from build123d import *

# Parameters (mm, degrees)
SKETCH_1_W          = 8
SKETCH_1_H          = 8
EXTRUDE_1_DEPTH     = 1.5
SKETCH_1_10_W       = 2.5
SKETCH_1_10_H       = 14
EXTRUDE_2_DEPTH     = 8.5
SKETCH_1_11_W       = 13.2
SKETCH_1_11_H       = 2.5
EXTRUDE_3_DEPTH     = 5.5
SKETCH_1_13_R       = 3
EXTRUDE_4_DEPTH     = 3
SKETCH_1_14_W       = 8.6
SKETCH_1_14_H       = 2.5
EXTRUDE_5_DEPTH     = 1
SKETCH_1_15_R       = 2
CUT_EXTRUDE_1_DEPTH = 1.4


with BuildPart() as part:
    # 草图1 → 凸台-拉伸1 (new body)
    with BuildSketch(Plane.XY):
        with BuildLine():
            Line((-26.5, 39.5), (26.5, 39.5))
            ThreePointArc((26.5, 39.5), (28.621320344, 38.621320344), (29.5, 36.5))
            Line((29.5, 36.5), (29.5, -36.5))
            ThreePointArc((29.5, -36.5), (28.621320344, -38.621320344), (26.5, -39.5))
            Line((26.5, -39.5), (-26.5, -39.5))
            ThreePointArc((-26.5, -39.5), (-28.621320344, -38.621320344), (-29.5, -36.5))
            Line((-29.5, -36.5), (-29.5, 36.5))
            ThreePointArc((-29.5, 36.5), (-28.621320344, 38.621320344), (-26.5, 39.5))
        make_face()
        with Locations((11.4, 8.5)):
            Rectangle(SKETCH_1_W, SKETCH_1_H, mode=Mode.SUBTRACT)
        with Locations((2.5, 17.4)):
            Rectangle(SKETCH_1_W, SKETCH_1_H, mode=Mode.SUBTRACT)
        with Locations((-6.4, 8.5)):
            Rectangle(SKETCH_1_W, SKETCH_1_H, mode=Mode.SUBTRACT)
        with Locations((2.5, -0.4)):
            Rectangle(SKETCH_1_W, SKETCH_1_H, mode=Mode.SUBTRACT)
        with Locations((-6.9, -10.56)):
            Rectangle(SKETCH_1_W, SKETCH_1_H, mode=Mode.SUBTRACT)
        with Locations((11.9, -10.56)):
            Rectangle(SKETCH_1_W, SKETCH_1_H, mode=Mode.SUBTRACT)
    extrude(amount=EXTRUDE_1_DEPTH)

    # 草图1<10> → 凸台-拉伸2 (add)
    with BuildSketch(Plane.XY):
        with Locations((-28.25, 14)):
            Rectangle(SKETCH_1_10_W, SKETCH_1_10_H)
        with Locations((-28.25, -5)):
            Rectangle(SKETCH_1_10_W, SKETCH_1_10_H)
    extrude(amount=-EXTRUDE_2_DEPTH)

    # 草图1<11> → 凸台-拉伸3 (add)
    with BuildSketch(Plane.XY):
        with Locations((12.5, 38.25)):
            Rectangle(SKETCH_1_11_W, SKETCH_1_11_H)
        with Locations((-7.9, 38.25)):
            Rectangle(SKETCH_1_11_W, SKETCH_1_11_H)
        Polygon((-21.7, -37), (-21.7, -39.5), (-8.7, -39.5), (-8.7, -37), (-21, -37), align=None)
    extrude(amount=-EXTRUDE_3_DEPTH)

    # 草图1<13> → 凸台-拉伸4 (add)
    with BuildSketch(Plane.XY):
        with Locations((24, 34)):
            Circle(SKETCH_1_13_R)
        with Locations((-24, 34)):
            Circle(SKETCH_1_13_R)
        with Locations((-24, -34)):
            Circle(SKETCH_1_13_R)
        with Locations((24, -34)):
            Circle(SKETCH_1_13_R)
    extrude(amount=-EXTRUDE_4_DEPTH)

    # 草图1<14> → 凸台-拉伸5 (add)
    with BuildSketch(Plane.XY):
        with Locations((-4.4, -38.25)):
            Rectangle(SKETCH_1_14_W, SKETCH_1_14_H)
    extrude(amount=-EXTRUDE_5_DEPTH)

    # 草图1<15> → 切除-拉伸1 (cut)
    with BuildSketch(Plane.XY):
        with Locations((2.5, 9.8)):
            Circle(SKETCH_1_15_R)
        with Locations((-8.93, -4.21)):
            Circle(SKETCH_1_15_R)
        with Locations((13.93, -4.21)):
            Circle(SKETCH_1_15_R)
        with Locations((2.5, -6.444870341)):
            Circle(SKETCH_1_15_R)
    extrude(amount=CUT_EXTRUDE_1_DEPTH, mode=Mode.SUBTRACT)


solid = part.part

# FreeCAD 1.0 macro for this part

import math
import FreeCAD as App
import Part
import Sketcher
Q = App.Units.Quantity

doc = App.newDocument("Part")
body = doc.addObject("PartDesign::Body", "Body")

sketch1 = doc.addObject("Sketcher::SketchObject", "Sketch")
body.addObject(sketch1)
sketch1.AttachmentSupport = (doc.XY_Plane, [""])
sketch1.MapMode = "FlatFace"
sketch1.addGeometry(Part.LineSegment(App.Vector(26.5, 39.5, 0), App.Vector(-26.5, 39.5, 0)), False)
sketch1.addGeometry(Part.ArcOfCircle(Part.Circle(App.Vector(-26.5, 36.5, 0), App.Vector(0, 0, 1), 3), math.radians(90), math.radians(180)), False)
sketch1.addGeometry(Part.LineSegment(App.Vector(-29.5, 36.5, 0), App.Vector(-29.5, -36.5, 0)), False)
sketch1.addGeometry(Part.ArcOfCircle(Part.Circle(App.Vector(-26.5, -36.5, 0), App.Vector(0, 0, 1), 3), math.radians(180), math.radians(270)), False)
sketch1.addGeometry(Part.LineSegment(App.Vector(-26.5, -39.5, 0), App.Vector(26.5, -39.5, 0)), False)
sketch1.addGeometry(Part.ArcOfCircle(Part.Circle(App.Vector(26.5, -36.5, 0), App.Vector(0, 0, 1), 3), math.radians(-90), math.radians(0)), False)
sketch1.addGeometry(Part.LineSegment(App.Vector(29.5, -36.5, 0), App.Vector(29.5, 36.5, 0)), False)
sketch1.addGeometry(Part.ArcOfCircle(Part.Circle(App.Vector(26.5, 36.5, 0), App.Vector(0, 0, 1), 3), math.radians(0), math.radians(90)), False)
sketch1.addGeometry(Part.LineSegment(App.Vector(7.9, -14.6, 0), App.Vector(7.9, -6.6, 0)), False)
sketch1.addGeometry(Part.LineSegment(App.Vector(7.9, -6.6, 0), App.Vector(15.9, -6.6, 0)), False)
sketch1.addGeometry(Part.LineSegment(App.Vector(15.9, -6.6, 0), App.Vector(15.9, -14.6, 0)), False)
sketch1.addGeometry(Part.LineSegment(App.Vector(15.9, -14.6, 0), App.Vector(7.9, -14.6, 0)), False)
sketch1.addGeometry(Part.LineSegment(App.Vector(-1.5, -4.4, 0), App.Vector(-1.5, 3.6, 0)), False)
sketch1.addGeometry(Part.LineSegment(App.Vector(-1.5, 3.6, 0), App.Vector(6.5, 3.6, 0)), False)
sketch1.addGeometry(Part.LineSegment(App.Vector(6.5, 3.6, 0), App.Vector(6.5, -4.4, 0)), False)
sketch1.addGeometry(Part.LineSegment(App.Vector(6.5, -4.4, 0), App.Vector(-1.5, -4.4, 0)), False)
sketch1.addGeometry(Part.LineSegment(App.Vector(-10.9, -14.6, 0), App.Vector(-10.9, -6.6, 0)), False)
sketch1.addGeometry(Part.LineSegment(App.Vector(-10.9, -6.6, 0), App.Vector(-2.9, -6.6, 0)), False)
sketch1.addGeometry(Part.LineSegment(App.Vector(-2.9, -6.6, 0), App.Vector(-2.9, -14.6, 0)), False)
sketch1.addGeometry(Part.LineSegment(App.Vector(-2.9, -14.6, 0), App.Vector(-10.9, -14.6, 0)), False)
sketch1.addGeometry(Part.LineSegment(App.Vector(7.4, 4.5, 0), App.Vector(7.4, 12.5, 0)), False)
sketch1.addGeometry(Part.LineSegment(App.Vector(7.4, 12.5, 0), App.Vector(15.4, 12.5, 0)), False)
sketch1.addGeometry(Part.LineSegment(App.Vector(15.4, 12.5, 0), App.Vector(15.4, 4.5, 0)), False)
sketch1.addGeometry(Part.LineSegment(App.Vector(15.4, 4.5, 0), App.Vector(7.4, 4.5, 0)), False)
sketch1.addGeometry(Part.LineSegment(App.Vector(-1.5, 13.4, 0), App.Vector(-1.5, 21.4, 0)), False)
sketch1.addGeometry(Part.LineSegment(App.Vector(-1.5, 21.4, 0), App.Vector(6.5, 21.4, 0)), False)
sketch1.addGeometry(Part.LineSegment(App.Vector(6.5, 21.4, 0), App.Vector(6.5, 13.4, 0)), False)
sketch1.addGeometry(Part.LineSegment(App.Vector(6.5, 13.4, 0), App.Vector(-1.5, 13.4, 0)), False)
sketch1.addGeometry(Part.LineSegment(App.Vector(-10.4, 4.5, 0), App.Vector(-10.4, 12.5, 0)), False)
sketch1.addGeometry(Part.LineSegment(App.Vector(-10.4, 12.5, 0), App.Vector(-2.4, 12.5, 0)), False)
sketch1.addGeometry(Part.LineSegment(App.Vector(-2.4, 12.5, 0), App.Vector(-2.4, 4.5, 0)), False)
sketch1.addGeometry(Part.LineSegment(App.Vector(-2.4, 4.5, 0), App.Vector(-10.4, 4.5, 0)), False)
sketch1.addConstraint(Sketcher.Constraint("Tangent", 0, 2, 1, 1))
sketch1.addConstraint(Sketcher.Constraint("Tangent", 1, 2, 2, 1))
sketch1.addConstraint(Sketcher.Constraint("Tangent", 2, 2, 3, 1))
sketch1.addConstraint(Sketcher.Constraint("Tangent", 3, 2, 4, 1))
sketch1.addConstraint(Sketcher.Constraint("Tangent", 4, 2, 5, 1))
sketch1.addConstraint(Sketcher.Constraint("Tangent", 5, 2, 6, 1))
sketch1.addConstraint(Sketcher.Constraint("Tangent", 6, 2, 7, 1))
sketch1.addConstraint(Sketcher.Constraint("Tangent", 7, 2, 0, 1))
sketch1.addConstraint(Sketcher.Constraint("Coincident", 8, 2, 9, 1))
sketch1.addConstraint(Sketcher.Constraint("Coincident", 9, 2, 10, 1))
sketch1.addConstraint(Sketcher.Constraint("Coincident", 10, 2, 11, 1))
sketch1.addConstraint(Sketcher.Constraint("Coincident", 11, 2, 8, 1))
sketch1.addConstraint(Sketcher.Constraint("Coincident", 12, 2, 13, 1))
sketch1.addConstraint(Sketcher.Constraint("Coincident", 13, 2, 14, 1))
sketch1.addConstraint(Sketcher.Constraint("Coincident", 14, 2, 15, 1))
sketch1.addConstraint(Sketcher.Constraint("Coincident", 15, 2, 12, 1))
sketch1.addConstraint(Sketcher.Constraint("Coincident", 16, 2, 17, 1))
sketch1.addConstraint(Sketcher.Constraint("Coincident", 17, 2, 18, 1))
sketch1.addConstraint(Sketcher.Constraint("Coincident", 18, 2, 19, 1))
sketch1.addConstraint(Sketcher.Constraint("Coincident", 19, 2, 16, 1))
sketch1.addConstraint(Sketcher.Constraint("Coincident", 20, 2, 21, 1))
sketch1.addConstraint(Sketcher.Constraint("Coincident", 21, 2, 22, 1))
sketch1.addConstraint(Sketcher.Constraint("Coincident", 22, 2, 23, 1))
sketch1.addConstraint(Sketcher.Constraint("Coincident", 23, 2, 20, 1))
sketch1.addConstraint(Sketcher.Constraint("Coincident", 24, 2, 25, 1))
sketch1.addConstraint(Sketcher.Constraint("Coincident", 25, 2, 26, 1))
sketch1.addConstraint(Sketcher.Constraint("Coincident", 26, 2, 27, 1))
sketch1.addConstraint(Sketcher.Constraint("Coincident", 27, 2, 24, 1))
sketch1.addConstraint(Sketcher.Constraint("Coincident", 28, 2, 29, 1))
sketch1.addConstraint(Sketcher.Constraint("Coincident", 29, 2, 30, 1))
sketch1.addConstraint(Sketcher.Constraint("Coincident", 30, 2, 31, 1))
sketch1.addConstraint(Sketcher.Constraint("Coincident", 31, 2, 28, 1))
sketch1.addConstraint(Sketcher.Constraint("Horizontal", 0))
sketch1.addConstraint(Sketcher.Constraint("Vertical", 2))
sketch1.addConstraint(Sketcher.Constraint("Horizontal", 4))
sketch1.addConstraint(Sketcher.Constraint("Vertical", 6))
sketch1.addConstraint(Sketcher.Constraint("Vertical", 8))
sketch1.addConstraint(Sketcher.Constraint("Horizontal", 9))
sketch1.addConstraint(Sketcher.Constraint("Vertical", 10))
sketch1.addConstraint(Sketcher.Constraint("Horizontal", 11))
sketch1.addConstraint(Sketcher.Constraint("Vertical", 12))
sketch1.addConstraint(Sketcher.Constraint("Horizontal", 13))
sketch1.addConstraint(Sketcher.Constraint("Vertical", 14))
sketch1.addConstraint(Sketcher.Constraint("Horizontal", 15))
sketch1.addConstraint(Sketcher.Constraint("Vertical", 16))
sketch1.addConstraint(Sketcher.Constraint("Horizontal", 17))
sketch1.addConstraint(Sketcher.Constraint("Vertical", 18))
sketch1.addConstraint(Sketcher.Constraint("Horizontal", 19))
sketch1.addConstraint(Sketcher.Constraint("Vertical", 20))
sketch1.addConstraint(Sketcher.Constraint("Horizontal", 21))
sketch1.addConstraint(Sketcher.Constraint("Vertical", 22))
sketch1.addConstraint(Sketcher.Constraint("Horizontal", 23))
sketch1.addConstraint(Sketcher.Constraint("Vertical", 24))
sketch1.addConstraint(Sketcher.Constraint("Horizontal", 25))
sketch1.addConstraint(Sketcher.Constraint("Vertical", 26))
sketch1.addConstraint(Sketcher.Constraint("Horizontal", 27))
sketch1.addConstraint(Sketcher.Constraint("Vertical", 28))
sketch1.addConstraint(Sketcher.Constraint("Horizontal", 29))
sketch1.addConstraint(Sketcher.Constraint("Vertical", 30))
sketch1.addConstraint(Sketcher.Constraint("Horizontal", 31))
sketch1.addConstraint(Sketcher.Constraint("Equal", 1, 3))
sketch1.addConstraint(Sketcher.Constraint("Equal", 3, 5))
sketch1.addConstraint(Sketcher.Constraint("Equal", 5, 7))
sketch1.addConstraint(Sketcher.Constraint("Symmetric", 1, 3, 5, 3, -1, 1))
sketch1.addConstraint(Sketcher.Constraint("Horizontal", 9, 2, 16, 2))
sketch1.addConstraint(Sketcher.Constraint("Horizontal", 11, 2, 18, 2))
sketch1.addConstraint(Sketcher.Constraint("Horizontal", 21, 2, 28, 2))
sketch1.addConstraint(Sketcher.Constraint("Horizontal", 23, 2, 30, 2))
sketch1.addConstraint(Sketcher.Constraint("Vertical", 15, 2, 24, 2))
sketch1.addConstraint(Sketcher.Constraint("Vertical", 14, 2, 25, 2))
sketch1.addConstraint(Sketcher.Constraint("Equal", 11, 13))
sketch1.addConstraint(Sketcher.Constraint("Equal", 15, 17))
sketch1.addConstraint(Sketcher.Constraint("Equal", 19, 21))
sketch1.addConstraint(Sketcher.Constraint("Equal", 27, 29))
sketch1.addConstraint(Sketcher.Constraint("Equal", 31, 8))
sketch1.addConstraint(Sketcher.Constraint("Equal", 10, 12))
sketch1.addConstraint(Sketcher.Constraint("Equal", 18, 20))
sketch1.addConstraint(Sketcher.Constraint("Equal", 22, 24))
sketch1.addConstraint(Sketcher.Constraint("Radius", 1, Q("3 mm")))
sketch1.addConstraint(Sketcher.Constraint("DistanceX", 0, 2, 0, 1, Q("53 mm")))
sketch1.addConstraint(Sketcher.Constraint("DistanceX", 9, 1, 9, 2, Q("8 mm")))
sketch1.addConstraint(Sketcher.Constraint("DistanceY", 2, 2, 2, 1, Q("73 mm")))
sketch1.addConstraint(Sketcher.Constraint("DistanceX", 1, 3, 12, 2, Q("25 mm")))
sketch1.addConstraint(Sketcher.Constraint("DistanceX", -1, 1, 8, 2, Q("7.9 mm")))
sketch1.addConstraint(Sketcher.Constraint("DistanceY", -1, 1, 12, 2, Q("3.6 mm")))
sketch1.addConstraint(Sketcher.Constraint("DistanceX", 16, 2, -1, 1, Q("10.9 mm")))
sketch1.addConstraint(Sketcher.Constraint("DistanceX", -1, 1, 20, 2, Q("7.4 mm")))
sketch1.addConstraint(Sketcher.Constraint("DistanceY", -1, 1, 20, 2, Q("12.5 mm")))
sketch1.addConstraint(Sketcher.Constraint("DistanceY", -1, 1, 24, 2, Q("21.4 mm")))
sketch1.addConstraint(Sketcher.Constraint("DistanceX", 28, 2, -1, 1, Q("10.4 mm")))
sketch1.addConstraint(Sketcher.Constraint("DistanceY", 8, 2, -1, 1, Q("6.56 mm")))
pad1 = doc.addObject("PartDesign::Pad", "Pad")
body.addObject(pad1)
pad1.Profile = sketch1
pad1.Length = 1.5

sketch2 = doc.addObject("Sketcher::SketchObject", "Sketch001")
body.addObject(sketch2)
sketch2.AttachmentSupport = (doc.XY_Plane, [""])
sketch2.MapMode = "FlatFace"
sketch2.addGeometry(Part.LineSegment(App.Vector(-29.5, 21, 0), App.Vector(-29.5, 7, 0)), False)
sketch2.addGeometry(Part.LineSegment(App.Vector(-29.5, 7, 0), App.Vector(-27, 7, 0)), False)
sketch2.addGeometry(Part.LineSegment(App.Vector(-27, 7, 0), App.Vector(-27, 21, 0)), False)
sketch2.addGeometry(Part.LineSegment(App.Vector(-27, 21, 0), App.Vector(-29.5, 21, 0)), False)
sketch2.addGeometry(Part.LineSegment(App.Vector(-29.5, 2, 0), App.Vector(-29.5, -12, 0)), False)
sketch2.addGeometry(Part.LineSegment(App.Vector(-29.5, -12, 0), App.Vector(-27, -12, 0)), False)
sketch2.addGeometry(Part.LineSegment(App.Vector(-27, -12, 0), App.Vector(-27, 2, 0)), False)
sketch2.addGeometry(Part.LineSegment(App.Vector(-27, 2, 0), App.Vector(-29.5, 2, 0)), False)
sketch2.addConstraint(Sketcher.Constraint("Coincident", 0, 2, 1, 1))
sketch2.addConstraint(Sketcher.Constraint("Coincident", 1, 2, 2, 1))
sketch2.addConstraint(Sketcher.Constraint("Coincident", 2, 2, 3, 1))
sketch2.addConstraint(Sketcher.Constraint("Coincident", 3, 2, 0, 1))
sketch2.addConstraint(Sketcher.Constraint("Coincident", 4, 2, 5, 1))
sketch2.addConstraint(Sketcher.Constraint("Coincident", 5, 2, 6, 1))
sketch2.addConstraint(Sketcher.Constraint("Coincident", 6, 2, 7, 1))
sketch2.addConstraint(Sketcher.Constraint("Coincident", 7, 2, 4, 1))
sketch2.addConstraint(Sketcher.Constraint("Vertical", 0))
sketch2.addConstraint(Sketcher.Constraint("Horizontal", 1))
sketch2.addConstraint(Sketcher.Constraint("Vertical", 2))
sketch2.addConstraint(Sketcher.Constraint("Horizontal", 3))
sketch2.addConstraint(Sketcher.Constraint("Vertical", 4))
sketch2.addConstraint(Sketcher.Constraint("Horizontal", 5))
sketch2.addConstraint(Sketcher.Constraint("Vertical", 6))
sketch2.addConstraint(Sketcher.Constraint("Horizontal", 7))
sketch2.addConstraint(Sketcher.Constraint("Vertical", 3, 2, 4, 2))
sketch2.addConstraint(Sketcher.Constraint("Vertical", 2, 2, 5, 2))
sketch2.addConstraint(Sketcher.Constraint("Equal", 2, 4))
sketch2.addConstraint(Sketcher.Constraint("DistanceY", 0, 2, 0, 1, Q("14 mm")))
sketch2.addConstraint(Sketcher.Constraint("DistanceX", 1, 1, 1, 2, Q("2.5 mm")))
sketch2.addConstraint(Sketcher.Constraint("DistanceY", -1, 1, 0, 2, Q("7 mm")))
sketch2.addConstraint(Sketcher.Constraint("DistanceX", 1, 2, -1, 1, Q("27 mm")))
sketch2.addConstraint(Sketcher.Constraint("DistanceY", 4, 2, -1, 1, Q("12 mm")))
pad2 = doc.addObject("PartDesign::Pad", "Pad001")
body.addObject(pad2)
pad2.Profile = sketch2
pad2.Length = 8.5
pad2.Reversed = True

sketch3 = doc.addObject("Sketcher::SketchObject", "Sketch002")
body.addObject(sketch3)
sketch3.AttachmentSupport = (doc.XY_Plane, [""])
sketch3.MapMode = "FlatFace"
sketch3.addGeometry(Part.LineSegment(App.Vector(5.9, 39.5, 0), App.Vector(5.9, 37, 0)), False)
sketch3.addGeometry(Part.LineSegment(App.Vector(5.9, 37, 0), App.Vector(19.1, 37, 0)), False)
sketch3.addGeometry(Part.LineSegment(App.Vector(19.1, 37, 0), App.Vector(19.1, 39.5, 0)), False)
sketch3.addGeometry(Part.LineSegment(App.Vector(19.1, 39.5, 0), App.Vector(5.9, 39.5, 0)), False)
sketch3.addGeometry(Part.LineSegment(App.Vector(-14.5, 39.5, 0), App.Vector(-14.5, 37, 0)), False)
sketch3.addGeometry(Part.LineSegment(App.Vector(-14.5, 37, 0), App.Vector(-1.3, 37, 0)), False)
sketch3.addGeometry(Part.LineSegment(App.Vector(-1.3, 37, 0), App.Vector(-1.3, 39.5, 0)), False)
sketch3.addGeometry(Part.LineSegment(App.Vector(-1.3, 39.5, 0), App.Vector(-14.5, 39.5, 0)), False)
sketch3.addGeometry(Part.LineSegment(App.Vector(-21.7, -37, 0), App.Vector(-21.7, -39.5, 0)), False)
sketch3.addGeometry(Part.LineSegment(App.Vector(-21.7, -39.5, 0), App.Vector(-8.7, -39.5, 0)), False)
sketch3.addGeometry(Part.LineSegment(App.Vector(-8.7, -39.5, 0), App.Vector(-8.7, -37, 0)), False)
sketch3.addGeometry(Part.LineSegment(App.Vector(-8.7, -37, 0), App.Vector(-21.7, -37, 0)), False)
sketch3.addConstraint(Sketcher.Constraint("Coincident", 0, 2, 1, 1))
sketch3.addConstraint(Sketcher.Constraint("Coincident", 1, 2, 2, 1))
sketch3.addConstraint(Sketcher.Constraint("Coincident", 2, 2, 3, 1))
sketch3.addConstraint(Sketcher.Constraint("Coincident", 3, 2, 0, 1))
sketch3.addConstraint(Sketcher.Constraint("Coincident", 4, 2, 5, 1))
sketch3.addConstraint(Sketcher.Constraint("Coincident", 5, 2, 6, 1))
sketch3.addConstraint(Sketcher.Constraint("Coincident", 6, 2, 7, 1))
sketch3.addConstraint(Sketcher.Constraint("Coincident", 7, 2, 4, 1))
sketch3.addConstraint(Sketcher.Constraint("Coincident", 8, 2, 9, 1))
sketch3.addConstraint(Sketcher.Constraint("Coincident", 9, 2, 10, 1))
sketch3.addConstraint(Sketcher.Constraint("Coincident", 10, 2, 11, 1))
sketch3.addConstraint(Sketcher.Constraint("Coincident", 11, 2, 8, 1))
sketch3.addConstraint(Sketcher.Constraint("Vertical", 0))
sketch3.addConstraint(Sketcher.Constraint("Horizontal", 1))
sketch3.addConstraint(Sketcher.Constraint("Vertical", 2))
sketch3.addConstraint(Sketcher.Constraint("Horizontal", 3))
sketch3.addConstraint(Sketcher.Constraint("Vertical", 4))
sketch3.addConstraint(Sketcher.Constraint("Horizontal", 5))
sketch3.addConstraint(Sketcher.Constraint("Vertical", 6))
sketch3.addConstraint(Sketcher.Constraint("Horizontal", 7))
sketch3.addConstraint(Sketcher.Constraint("Vertical", 8))
sketch3.addConstraint(Sketcher.Constraint("Horizontal", 9))
sketch3.addConstraint(Sketcher.Constraint("Vertical", 10))
sketch3.addConstraint(Sketcher.Constraint("Horizontal", 11))
sketch3.addConstraint(Sketcher.Constraint("Horizontal", 1, 2, 4, 2))
sketch3.addConstraint(Sketcher.Constraint("Horizontal", 3, 2, 6, 2))
sketch3.addConstraint(Sketcher.Constraint("Equal", 3, 5))
sketch3.addConstraint(Sketcher.Constraint("Equal", 6, 8))
sketch3.addConstraint(Sketcher.Constraint("DistanceX", 9, 1, 9, 2, Q("13 mm")))
sketch3.addConstraint(Sketcher.Constraint("DistanceX", 1, 1, 1, 2, Q("13.2 mm")))
sketch3.addConstraint(Sketcher.Constraint("DistanceY", 0, 2, 0, 1, Q("2.5 mm")))
sketch3.addConstraint(Sketcher.Constraint("DistanceY", -1, 1, 0, 2, Q("37 mm")))
sketch3.addConstraint(Sketcher.Constraint("DistanceY", 10, 2, -1, 1, Q("37 mm")))
sketch3.addConstraint(Sketcher.Constraint("DistanceX", -1, 1, 0, 2, Q("5.9 mm")))
sketch3.addConstraint(Sketcher.Constraint("DistanceX", 4, 2, -1, 1, Q("14.5 mm")))
sketch3.addConstraint(Sketcher.Constraint("DistanceX", 8, 2, -1, 1, Q("21.7 mm")))
pad3 = doc.addObject("PartDesign::Pad", "Pad002")
body.addObject(pad3)
pad3.Profile = sketch3
pad3.Length = 5.5
pad3.Reversed = True

sketch4 = doc.addObject("Sketcher::SketchObject", "Sketch003")
body.addObject(sketch4)
sketch4.AttachmentSupport = (doc.XY_Plane, [""])
sketch4.MapMode = "FlatFace"
sketch4.addGeometry(Part.Circle(App.Vector(24, 34, 0), App.Vector(0, 0, 1), 3), False)
sketch4.addGeometry(Part.Circle(App.Vector(-24, 34, 0), App.Vector(0, 0, 1), 3), False)
sketch4.addGeometry(Part.Circle(App.Vector(-24, -34, 0), App.Vector(0, 0, 1), 3), False)
sketch4.addGeometry(Part.Circle(App.Vector(24, -34, 0), App.Vector(0, 0, 1), 3), False)
sketch4.addConstraint(Sketcher.Constraint("Equal", 0, 1))
sketch4.addConstraint(Sketcher.Constraint("Equal", 1, 2))
sketch4.addConstraint(Sketcher.Constraint("Equal", 2, 3))
sketch4.addConstraint(Sketcher.Constraint("Symmetric", 0, 3, 2, 3, -1, 1))
sketch4.addConstraint(Sketcher.Constraint("Symmetric", 1, 3, 3, 3, -1, 1))
sketch4.addConstraint(Sketcher.Constraint("Symmetric", 0, 3, 1, 3, -2))
sketch4.addConstraint(Sketcher.Constraint("Diameter", 0, Q("6 mm")))
sketch4.addConstraint(Sketcher.Constraint("DistanceX", -1, 1, 0, 3, Q("24 mm")))
sketch4.addConstraint(Sketcher.Constraint("DistanceY", -1, 1, 0, 3, Q("34 mm")))
pad4 = doc.addObject("PartDesign::Pad", "Pad003")
body.addObject(pad4)
pad4.Profile = sketch4
pad4.Length = 3
pad4.Reversed = True

sketch5 = doc.addObject("Sketcher::SketchObject", "Sketch004")
body.addObject(sketch5)
sketch5.AttachmentSupport = (doc.XY_Plane, [""])
sketch5.MapMode = "FlatFace"
sketch5.addGeometry(Part.LineSegment(App.Vector(-8.7, -37, 0), App.Vector(-8.7, -39.5, 0)), False)
sketch5.addGeometry(Part.LineSegment(App.Vector(-8.7, -39.5, 0), App.Vector(-0.1, -39.5, 0)), False)
sketch5.addGeometry(Part.LineSegment(App.Vector(-0.1, -39.5, 0), App.Vector(-0.1, -37, 0)), False)
sketch5.addGeometry(Part.LineSegment(App.Vector(-0.1, -37, 0), App.Vector(-8.7, -37, 0)), False)
sketch5.addConstraint(Sketcher.Constraint("Coincident", 0, 2, 1, 1))
sketch5.addConstraint(Sketcher.Constraint("Coincident", 1, 2, 2, 1))
sketch5.addConstraint(Sketcher.Constraint("Coincident", 2, 2, 3, 1))
sketch5.addConstraint(Sketcher.Constraint("Coincident", 3, 2, 0, 1))
sketch5.addConstraint(Sketcher.Constraint("Vertical", 0))
sketch5.addConstraint(Sketcher.Constraint("Horizontal", 1))
sketch5.addConstraint(Sketcher.Constraint("Vertical", 2))
sketch5.addConstraint(Sketcher.Constraint("Horizontal", 3))
sketch5.addConstraint(Sketcher.Constraint("DistanceX", 1, 1, 1, 2, Q("8.6 mm")))
sketch5.addConstraint(Sketcher.Constraint("DistanceY", 0, 2, 0, 1, Q("2.5 mm")))
sketch5.addConstraint(Sketcher.Constraint("DistanceY", 2, 2, -1, 1, Q("37 mm")))
sketch5.addConstraint(Sketcher.Constraint("DistanceX", 0, 2, -1, 1, Q("8.7 mm")))
pad5 = doc.addObject("PartDesign::Pad", "Pad004")
body.addObject(pad5)
pad5.Profile = sketch5
pad5.Length = 1
pad5.Reversed = True

sketch6 = doc.addObject("Sketcher::SketchObject", "Sketch005")
body.addObject(sketch6)
sketch6.AttachmentSupport = (doc.XY_Plane, [""])
sketch6.MapMode = "FlatFace"
sketch6.addGeometry(Part.Circle(App.Vector(2.5, 9.8, 0), App.Vector(0, 0, 1), 2), False)
sketch6.addGeometry(Part.Circle(App.Vector(-8.9, -4.2, 0), App.Vector(0, 0, 1), 2), False)
sketch6.addGeometry(Part.Circle(App.Vector(13.9, -4.2, 0), App.Vector(0, 0, 1), 2), False)
sketch6.addGeometry(Part.Circle(App.Vector(2.5, -6.4, 0), App.Vector(0, 0, 1), 2), False)
sketch6.addConstraint(Sketcher.Constraint("Equal", 0, 1))
sketch6.addConstraint(Sketcher.Constraint("Equal", 1, 2))
sketch6.addConstraint(Sketcher.Constraint("Equal", 2, 3))
sketch6.addConstraint(Sketcher.Constraint("Horizontal", 1, 3, 2, 3))
sketch6.addConstraint(Sketcher.Constraint("Vertical", 0, 3, 3, 3))
sketch6.addConstraint(Sketcher.Constraint("Diameter", 0, Q("4 mm")))
sketch6.addConstraint(Sketcher.Constraint("DistanceX", -1, 1, 0, 3, Q("2.5 mm")))
sketch6.addConstraint(Sketcher.Constraint("DistanceY", -1, 1, 0, 3, Q("9.8 mm")))
sketch6.addConstraint(Sketcher.Constraint("DistanceX", 1, 3, -1, 1, Q("8.93 mm")))
sketch6.addConstraint(Sketcher.Constraint("DistanceY", 1, 3, -1, 1, Q("4.21 mm")))
sketch6.addConstraint(Sketcher.Constraint("DistanceX", -1, 1, 2, 3, Q("13.93 mm")))
sketch6.addConstraint(Sketcher.Constraint("DistanceY", 3, 3, -1, 1, Q("6.44487 mm")))
pocket1 = doc.addObject("PartDesign::Pocket", "Pocket")
body.addObject(pocket1)
pocket1.Profile = sketch6
pocket1.Length = 1.4
pocket1.Reversed = True

doc.recompute()
